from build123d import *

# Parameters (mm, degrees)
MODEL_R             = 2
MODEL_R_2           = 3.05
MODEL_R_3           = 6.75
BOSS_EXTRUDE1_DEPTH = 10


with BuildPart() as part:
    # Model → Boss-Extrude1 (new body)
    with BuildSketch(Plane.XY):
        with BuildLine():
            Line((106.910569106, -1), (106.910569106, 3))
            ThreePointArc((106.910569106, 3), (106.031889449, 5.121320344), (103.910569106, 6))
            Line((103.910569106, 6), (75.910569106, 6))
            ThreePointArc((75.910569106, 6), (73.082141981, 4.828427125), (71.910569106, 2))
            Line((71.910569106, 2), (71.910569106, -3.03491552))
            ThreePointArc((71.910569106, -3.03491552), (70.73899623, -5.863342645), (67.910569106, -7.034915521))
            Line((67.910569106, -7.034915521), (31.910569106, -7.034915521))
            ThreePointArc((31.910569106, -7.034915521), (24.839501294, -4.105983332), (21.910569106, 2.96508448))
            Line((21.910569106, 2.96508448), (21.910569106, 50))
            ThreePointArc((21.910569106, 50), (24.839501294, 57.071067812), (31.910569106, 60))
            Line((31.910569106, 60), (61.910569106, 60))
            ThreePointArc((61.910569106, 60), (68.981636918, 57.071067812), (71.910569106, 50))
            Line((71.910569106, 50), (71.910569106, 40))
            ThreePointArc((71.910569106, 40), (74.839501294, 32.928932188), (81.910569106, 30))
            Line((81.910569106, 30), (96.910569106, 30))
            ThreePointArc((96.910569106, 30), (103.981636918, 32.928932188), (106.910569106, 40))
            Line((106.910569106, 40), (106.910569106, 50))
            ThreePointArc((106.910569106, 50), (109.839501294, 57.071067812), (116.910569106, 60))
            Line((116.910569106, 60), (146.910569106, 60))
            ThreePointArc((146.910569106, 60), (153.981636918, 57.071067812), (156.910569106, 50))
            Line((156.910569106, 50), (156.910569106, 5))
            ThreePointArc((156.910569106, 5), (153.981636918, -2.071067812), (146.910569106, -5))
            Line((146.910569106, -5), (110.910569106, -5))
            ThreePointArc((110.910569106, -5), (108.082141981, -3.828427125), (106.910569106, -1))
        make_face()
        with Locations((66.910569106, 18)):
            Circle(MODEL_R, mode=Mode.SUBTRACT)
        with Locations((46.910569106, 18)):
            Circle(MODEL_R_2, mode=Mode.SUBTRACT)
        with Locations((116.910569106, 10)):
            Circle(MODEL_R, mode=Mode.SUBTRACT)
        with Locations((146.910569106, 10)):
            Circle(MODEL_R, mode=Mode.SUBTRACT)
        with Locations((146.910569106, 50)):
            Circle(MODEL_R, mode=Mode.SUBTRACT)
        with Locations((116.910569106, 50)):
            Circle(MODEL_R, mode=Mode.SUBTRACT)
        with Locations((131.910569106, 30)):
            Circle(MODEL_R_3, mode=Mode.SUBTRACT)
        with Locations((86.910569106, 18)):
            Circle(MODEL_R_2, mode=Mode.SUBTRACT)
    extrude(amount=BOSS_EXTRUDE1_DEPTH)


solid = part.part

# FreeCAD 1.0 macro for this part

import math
import FreeCAD as App
import Part
import Sketcher

V = App.Vector

doc = App.newDocument("Part")
body = doc.addObject("PartDesign::Body", "Body")

# Sketch on XY plane
sketch1 = body.newObject("Sketcher::SketchObject", "Sketch")
sketch1.AttachmentSupport = (doc.getObject("XY_Plane"), [""])
sketch1.MapMode = "FlatFace"
sketch1.addGeometry([
    Part.LineSegment(V(106.9, 3, 0), V(106.9, -1, 0)),  # 0
    Part.ArcOfCircle(Part.Circle(V(110.9, -1, 0), V(0, 0, 1), 4), math.radians(180), math.radians(270)),  # 1
    Part.LineSegment(V(110.9, -5, 0), V(146.9, -5, 0)),  # 2
    Part.ArcOfCircle(Part.Circle(V(146.9, 5, 0), V(0, 0, 1), 10), math.radians(-90), math.radians(0)),  # 3
    Part.LineSegment(V(156.9, 5, 0), V(156.9, 50, 0)),  # 4
    Part.ArcOfCircle(Part.Circle(V(146.9, 50, 0), V(0, 0, 1), 10), math.radians(0), math.radians(90)),  # 5
    Part.LineSegment(V(146.9, 60, 0), V(116.9, 60, 0)),  # 6
    Part.ArcOfCircle(Part.Circle(V(116.9, 50, 0), V(0, 0, 1), 10), math.radians(90), math.radians(180)),  # 7
    Part.LineSegment(V(106.9, 50, 0), V(106.9, 40, 0)),  # 8
    Part.ArcOfCircle(Part.Circle(V(96.9, 40, 0), V(0, 0, 1), 10), math.radians(-90), math.radians(0)),  # 9
    Part.LineSegment(V(96.9, 30, 0), V(81.9, 30, 0)),  # 10
    Part.ArcOfCircle(Part.Circle(V(81.9, 40, 0), V(0, 0, 1), 10), math.radians(180), math.radians(270)),  # 11
    Part.LineSegment(V(71.9, 40, 0), V(71.9, 50, 0)),  # 12
    Part.ArcOfCircle(Part.Circle(V(61.9, 50, 0), V(0, 0, 1), 10), math.radians(0), math.radians(90)),  # 13
    Part.LineSegment(V(61.9, 60, 0), V(31.9, 60, 0)),  # 14
    Part.ArcOfCircle(Part.Circle(V(31.9, 50, 0), V(0, 0, 1), 10), math.radians(90), math.radians(180)),  # 15
    Part.LineSegment(V(21.9, 50, 0), V(21.9, 3, 0)),  # 16
    Part.ArcOfCircle(Part.Circle(V(31.9, 3, 0), V(0, 0, 1), 10), math.radians(180), math.radians(270)),  # 17
    Part.LineSegment(V(31.9, -7, 0), V(67.9, -7, 0)),  # 18
    Part.ArcOfCircle(Part.Circle(V(67.9, -3, 0), V(0, 0, 1), 4), math.radians(-90), math.radians(0)),  # 19
    Part.LineSegment(V(71.9, -3, 0), V(71.9, 2, 0)),  # 20
    Part.ArcOfCircle(Part.Circle(V(75.9, 2, 0), V(0, 0, 1), 4), math.radians(90), math.radians(180)),  # 21
    Part.LineSegment(V(75.9, 6, 0), V(103.9, 6, 0)),  # 22
    Part.ArcOfCircle(Part.Circle(V(103.9, 3, 0), V(0, 0, 1), 3), math.radians(0), math.radians(90)),  # 23
    Part.Circle(V(146.9, 10, 0), V(0, 0, 1), 2),  # 24
    Part.Circle(V(116.9, 10, 0), V(0, 0, 1), 2),  # 25
    Part.Circle(V(86.9, 18, 0), V(0, 0, 1), 3),  # 26
    Part.Circle(V(66.9, 18, 0), V(0, 0, 1), 2),  # 27
    Part.Circle(V(46.9, 18, 0), V(0, 0, 1), 3),  # 28
    Part.Circle(V(131.9, 30, 0), V(0, 0, 1), 6.8),  # 29
    Part.Circle(V(146.9, 50, 0), V(0, 0, 1), 2),  # 30
    Part.Circle(V(116.9, 50, 0), V(0, 0, 1), 2),  # 31
], False)
sketch1.addConstraint([
    Sketcher.Constraint("Tangent", 0, 2, 1, 1),
    Sketcher.Constraint("Tangent", 1, 2, 2, 1),
    Sketcher.Constraint("Tangent", 2, 2, 3, 1),
    Sketcher.Constraint("Tangent", 3, 2, 4, 1),
    Sketcher.Constraint("Tangent", 4, 2, 5, 1),
    Sketcher.Constraint("Tangent", 5, 2, 6, 1),
    Sketcher.Constraint("Tangent", 6, 2, 7, 1),
    Sketcher.Constraint("Tangent", 7, 2, 8, 1),
    Sketcher.Constraint("Tangent", 8, 2, 9, 2),
    Sketcher.Constraint("Tangent", 9, 1, 10, 1),
    Sketcher.Constraint("Tangent", 10, 2, 11, 2),
    Sketcher.Constraint("Tangent", 11, 1, 12, 1),
    Sketcher.Constraint("Tangent", 12, 2, 13, 1),
    Sketcher.Constraint("Tangent", 13, 2, 14, 1),
    Sketcher.Constraint("Tangent", 14, 2, 15, 1),
    Sketcher.Constraint("Tangent", 15, 2, 16, 1),
    Sketcher.Constraint("Tangent", 16, 2, 17, 1),
    Sketcher.Constraint("Tangent", 17, 2, 18, 1),
    Sketcher.Constraint("Tangent", 18, 2, 19, 1),
    Sketcher.Constraint("Tangent", 19, 2, 20, 1),
    Sketcher.Constraint("Tangent", 20, 2, 21, 2),
    Sketcher.Constraint("Tangent", 21, 1, 22, 1),
    Sketcher.Constraint("Tangent", 22, 2, 23, 2),
    Sketcher.Constraint("Tangent", 23, 1, 0, 1),
    Sketcher.Constraint("Vertical", 0),
    Sketcher.Constraint("Horizontal", 2),
    Sketcher.Constraint("Vertical", 4),
    Sketcher.Constraint("Horizontal", 6),
    Sketcher.Constraint("Vertical", 8),
    Sketcher.Constraint("Horizontal", 10),
    Sketcher.Constraint("Vertical", 12),
    Sketcher.Constraint("Horizontal", 14),
    Sketcher.Constraint("Vertical", 16),
    Sketcher.Constraint("Horizontal", 18),
    Sketcher.Constraint("Vertical", 20),
    Sketcher.Constraint("Horizontal", 22),
    Sketcher.Constraint("Coincident", 30, 3, 5, 3),
    Sketcher.Constraint("Coincident", 31, 3, 7, 3),
    Sketcher.Constraint("Equal", 3, 5),
    Sketcher.Constraint("Equal", 5, 7),
    Sketcher.Constraint("Equal", 7, 9),
    Sketcher.Constraint("Equal", 9, 11),
    Sketcher.Constraint("Equal", 11, 13),
    Sketcher.Constraint("Equal", 13, 15),
    Sketcher.Constraint("Equal", 15, 17),
    Sketcher.Constraint("Equal", 1, 19),
    Sketcher.Constraint("Equal", 19, 21),
    Sketcher.Constraint("Equal", 24, 25),
    Sketcher.Constraint("Equal", 25, 27),
    Sketcher.Constraint("Equal", 26, 28),
    Sketcher.Constraint("Equal", 27, 30),
    Sketcher.Constraint("Equal", 30, 31),
    Sketcher.Constraint("Horizontal", 7, 3, 13, 3),
    Sketcher.Constraint("Horizontal", 24, 3, 25, 3),
    Sketcher.Constraint("Horizontal", 26, 3, 27, 3),
    Sketcher.Constraint("Horizontal", 27, 3, 28, 3),
    Sketcher.Constraint("Horizontal", 29, 3, 9, 1),
    Sketcher.Constraint("Vertical", 5, 3, 24, 3),
    Sketcher.Constraint("Vertical", 7, 3, 25, 3),
    Sketcher.Constraint("Vertical", 0, 2, 7, 2),
    Sketcher.Constraint("Vertical", 12, 2, 19, 2),
    Sketcher.Constraint("Equal", 6, 14),
    Sketcher.Constraint("Diameter", 24, 4.0),
    Sketcher.Constraint("Radius", 1, 4.0),
    Sketcher.Constraint("Radius", 3, 10.0),
    Sketcher.Constraint("Radius", 23, 3.0),
    Sketcher.Constraint("Diameter", 26, 6.1),
    Sketcher.Constraint("Diameter", 29, 13.5),
    Sketcher.Constraint("DistanceX", 2, 1, 2, 2, 36.0),
    Sketcher.Constraint("DistanceX", 10, 2, 10, 1, 15.0),
    Sketcher.Constraint("DistanceY", 0, 2, 0, 1, 4.0),
    Sketcher.Constraint("DistanceY", 4, 1, 4, 2, 45.0),
    Sketcher.Constraint("DistanceY", 8, 2, 8, 1, 10.0),
    Sketcher.Constraint("DistanceY", 1, 3, -1, 1, 1.0),
    Sketcher.Constraint("DistanceY", -1, 1, 24, 3, 10.0),
    Sketcher.Constraint("DistanceY", -1, 1, 26, 3, 18.0),
    Sketcher.Constraint("DistanceX", 21, 3, 26, 3, 11.0),
    Sketcher.Constraint("DistanceX", 27, 3, 21, 3, 9.0),
    Sketcher.Constraint("DistanceX", 28, 3, 27, 3, 20.0),
    Sketcher.Constraint("DistanceX", 29, 3, 5, 3, 15.0),
    Sketcher.Constraint("DistanceY", 16, 2, 16, 1, 47.034916),
    Sketcher.Constraint("DistanceX", -1, 1, 1, 3, 110.910569),
])
pad1 = body.newObject("PartDesign::Pad", "Pad")
pad1.Profile = sketch1
pad1.Length = 10

doc.recompute()
